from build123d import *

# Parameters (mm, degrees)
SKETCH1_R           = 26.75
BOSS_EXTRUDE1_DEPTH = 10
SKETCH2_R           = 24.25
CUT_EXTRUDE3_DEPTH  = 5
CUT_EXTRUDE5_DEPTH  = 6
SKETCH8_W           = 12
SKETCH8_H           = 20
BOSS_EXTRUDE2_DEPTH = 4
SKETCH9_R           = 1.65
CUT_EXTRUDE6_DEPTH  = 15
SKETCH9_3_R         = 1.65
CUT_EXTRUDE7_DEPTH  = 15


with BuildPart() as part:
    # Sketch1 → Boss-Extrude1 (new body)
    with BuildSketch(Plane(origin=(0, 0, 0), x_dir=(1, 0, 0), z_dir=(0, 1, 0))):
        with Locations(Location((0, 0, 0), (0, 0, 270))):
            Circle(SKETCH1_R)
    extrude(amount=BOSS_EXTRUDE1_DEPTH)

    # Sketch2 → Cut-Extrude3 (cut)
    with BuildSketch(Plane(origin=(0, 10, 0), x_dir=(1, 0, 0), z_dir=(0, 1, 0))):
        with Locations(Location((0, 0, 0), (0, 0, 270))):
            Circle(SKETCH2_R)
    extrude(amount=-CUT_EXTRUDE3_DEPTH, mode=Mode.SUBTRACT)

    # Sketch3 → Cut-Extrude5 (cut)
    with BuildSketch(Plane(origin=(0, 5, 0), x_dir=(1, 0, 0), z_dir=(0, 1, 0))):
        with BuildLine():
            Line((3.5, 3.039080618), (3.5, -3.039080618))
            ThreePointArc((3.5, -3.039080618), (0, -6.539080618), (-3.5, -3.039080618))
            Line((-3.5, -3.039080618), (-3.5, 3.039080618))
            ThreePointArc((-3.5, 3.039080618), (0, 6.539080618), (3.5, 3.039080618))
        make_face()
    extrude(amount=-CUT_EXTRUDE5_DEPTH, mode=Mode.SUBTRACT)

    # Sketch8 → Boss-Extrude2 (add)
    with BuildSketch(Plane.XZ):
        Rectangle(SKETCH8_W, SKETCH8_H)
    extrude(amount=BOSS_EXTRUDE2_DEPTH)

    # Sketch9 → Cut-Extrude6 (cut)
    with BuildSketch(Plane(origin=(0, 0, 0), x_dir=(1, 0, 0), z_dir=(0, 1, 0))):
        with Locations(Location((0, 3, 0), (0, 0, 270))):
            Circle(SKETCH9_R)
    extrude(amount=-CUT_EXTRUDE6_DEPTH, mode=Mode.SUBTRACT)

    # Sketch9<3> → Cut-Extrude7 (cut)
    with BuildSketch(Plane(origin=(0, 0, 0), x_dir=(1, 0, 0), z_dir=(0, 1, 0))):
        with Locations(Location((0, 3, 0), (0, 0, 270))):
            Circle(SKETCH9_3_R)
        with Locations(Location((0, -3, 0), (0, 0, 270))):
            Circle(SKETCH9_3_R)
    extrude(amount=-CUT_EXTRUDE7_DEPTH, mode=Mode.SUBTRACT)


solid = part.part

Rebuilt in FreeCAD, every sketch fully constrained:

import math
import FreeCAD as App
import Part
import Sketcher

V = App.Vector

doc = App.newDocument("Part")
body = doc.addObject("PartDesign::Body", "Body")

# Sketch on XZ plane
sketch1 = body.newObject("Sketcher::SketchObject", "Sketch")
sketch1.AttachmentSupport = (doc.getObject("XZ_Plane"), [""])
sketch1.MapMode = "FlatFace"
sketch1.addGeometry(Part.Circle(V(0, 0, 0), V(0, 0, 1), 26.75), False)
sketch1.addConstraint([
    Sketcher.Constraint("Coincident", 0, 3, -1, 1),
    Sketcher.Constraint("Diameter", 0, 53.5),
])
pad1 = body.newObject("PartDesign::Pad", "Pad")
pad1.Profile = sketch1
pad1.Length = 10
pad1.Reversed = True

# Sketch on XZ plane
sketch2 = body.newObject("Sketcher::SketchObject", "Sketch001")
sketch2.AttachmentSupport = (doc.getObject("XZ_Plane"), [""])
sketch2.MapMode = "FlatFace"
sketch2.AttachmentOffset = App.Placement(V(0, 0, -10), App.Rotation())
sketch2.addGeometry(Part.Circle(V(0, 0, 0), V(0, 0, 1), 24.25), False)
sketch2.addConstraint([
    Sketcher.Constraint("Coincident", 0, 3, -1, 1),
    Sketcher.Constraint("Diameter", 0, 48.5),
])
pocket1 = body.newObject("PartDesign::Pocket", "Pocket")
pocket1.Profile = sketch2
pocket1.Length = 5
pocket1.Reversed = True

# Sketch on XZ plane
sketch3 = body.newObject("Sketcher::SketchObject", "Sketch002")
sketch3.AttachmentSupport = (doc.getObject("XZ_Plane"), [""])
sketch3.MapMode = "FlatFace"
sketch3.AttachmentOffset = App.Placement(V(0, 0, -5), App.Rotation())
sketch3.addGeometry([
    Part.LineSegment(V(3.5, 3.039081, 0), V(3.5, -3.039081, 0)),
    Part.ArcOfCircle(Part.Circle(V(0, -3.039081, 0), V(0, 0, 1), 3.5), math.radians(180), math.radians(360)),
    Part.LineSegment(V(-3.5, -3.039081, 0), V(-3.5, 3.039081, 0)),
    Part.ArcOfCircle(Part.Circle(V(0, 3.039081, 0), V(0, 0, 1), 3.5), math.radians(0), math.radians(180)),
], False)
sketch3.addConstraint([
    Sketcher.Constraint("Tangent", 0, 2, 1, 2),
    Sketcher.Constraint("Tangent", 1, 1, 2, 1),
    Sketcher.Constraint("Tangent", 2, 2, 3, 2),
    Sketcher.Constraint("Tangent", 3, 1, 0, 1),
    Sketcher.Constraint("Vertical", 0),
    Sketcher.Constraint("Vertical", 2),
    Sketcher.Constraint("Symmetric", 1, 3, 3, 3, -1, 1),
    Sketcher.Constraint("Radius", 1, 3.5),
    Sketcher.Constraint("DistanceY", 0, 2, 0, 1, 6.078161),
])
pocket2 = body.newObject("PartDesign::Pocket", "Pocket001")
pocket2.Profile = sketch3
pocket2.Length = 6
pocket2.Reversed = True

# Sketch on XZ plane
sketch4 = body.newObject("Sketcher::SketchObject", "Sketch003")
sketch4.AttachmentSupport = (doc.getObject("XZ_Plane"), [""])
sketch4.MapMode = "FlatFace"
sketch4.addGeometry([
    Part.LineSegment(V(-6, 10, 0), V(-6, -10, 0)),
    Part.LineSegment(V(-6, -10, 0), V(6, -10, 0)),
    Part.LineSegment(V(6, -10, 0), V(6, 10, 0)),
    Part.LineSegment(V(6, 10, 0), V(-6, 10, 0)),
], False)
sketch4.addConstraint([
    Sketcher.Constraint("Coincident", 0, 2, 1, 1),
    Sketcher.Constraint("Coincident", 1, 2, 2, 1),
    Sketcher.Constraint("Coincident", 2, 2, 3, 1),
    Sketcher.Constraint("Coincident", 3, 2, 0, 1),
    Sketcher.Constraint("Vertical", 0),
    Sketcher.Constraint("Horizontal", 1),
    Sketcher.Constraint("Vertical", 2),
    Sketcher.Constraint("Horizontal", 3),
    Sketcher.Constraint("Symmetric", 0, 2, 2, 2, -1, 1),
    Sketcher.Constraint("DistanceX", 1, 1, 1, 2, 12.0),
    Sketcher.Constraint("DistanceY", 0, 2, 0, 1, 20.0),
])
pad2 = body.newObject("PartDesign::Pad", "Pad001")
pad2.Profile = sketch4
pad2.Length = 4

# Sketch on XZ plane
sketch5 = body.newObject("Sketcher::SketchObject", "Sketch004")
sketch5.AttachmentSupport = (doc.getObject("XZ_Plane"), [""])
sketch5.MapMode = "FlatFace"
sketch5.addGeometry(Part.Circle(V(0, -3, 0), V(0, 0, 1), 1.65), False)
sketch5.addConstraint([
    Sketcher.Constraint("PointOnObject", 0, 3, -2),
    Sketcher.Constraint("Diameter", 0, 3.3),
    Sketcher.Constraint("DistanceY", 0, 3, -1, 1, 3.0),
])
pocket3 = body.newObject("PartDesign::Pocket", "Pocket002")
pocket3.Profile = sketch5
pocket3.Length = 15
pocket3.Reversed = True

# Sketch on XZ plane
sketch6 = body.newObject("Sketcher::SketchObject", "Sketch005")
sketch6.AttachmentSupport = (doc.getObject("XZ_Plane"), [""])
sketch6.MapMode = "FlatFace"
sketch6.addGeometry([
    Part.Circle(V(0, -3, 0), V(0, 0, 1), 1.65),
    Part.Circle(V(0, 3, 0), V(0, 0, 1), 1.65),
], False)
sketch6.addConstraint([
    Sketcher.Constraint("Equal", 0, 1),
    Sketcher.Constraint("Symmetric", 0, 3, 1, 3, -1, 1),
    Sketcher.Constraint("PointOnObject", 0, 3, -2),
    Sketcher.Constraint("Diameter", 0, 3.3),
    Sketcher.Constraint("DistanceY", 0, 3, -1, 1, 3.0),
])
pocket4 = body.newObject("PartDesign::Pocket", "Pocket003")
pocket4.Profile = sketch6
pocket4.Length = 15
pocket4.Reversed = True

doc.recompute()
